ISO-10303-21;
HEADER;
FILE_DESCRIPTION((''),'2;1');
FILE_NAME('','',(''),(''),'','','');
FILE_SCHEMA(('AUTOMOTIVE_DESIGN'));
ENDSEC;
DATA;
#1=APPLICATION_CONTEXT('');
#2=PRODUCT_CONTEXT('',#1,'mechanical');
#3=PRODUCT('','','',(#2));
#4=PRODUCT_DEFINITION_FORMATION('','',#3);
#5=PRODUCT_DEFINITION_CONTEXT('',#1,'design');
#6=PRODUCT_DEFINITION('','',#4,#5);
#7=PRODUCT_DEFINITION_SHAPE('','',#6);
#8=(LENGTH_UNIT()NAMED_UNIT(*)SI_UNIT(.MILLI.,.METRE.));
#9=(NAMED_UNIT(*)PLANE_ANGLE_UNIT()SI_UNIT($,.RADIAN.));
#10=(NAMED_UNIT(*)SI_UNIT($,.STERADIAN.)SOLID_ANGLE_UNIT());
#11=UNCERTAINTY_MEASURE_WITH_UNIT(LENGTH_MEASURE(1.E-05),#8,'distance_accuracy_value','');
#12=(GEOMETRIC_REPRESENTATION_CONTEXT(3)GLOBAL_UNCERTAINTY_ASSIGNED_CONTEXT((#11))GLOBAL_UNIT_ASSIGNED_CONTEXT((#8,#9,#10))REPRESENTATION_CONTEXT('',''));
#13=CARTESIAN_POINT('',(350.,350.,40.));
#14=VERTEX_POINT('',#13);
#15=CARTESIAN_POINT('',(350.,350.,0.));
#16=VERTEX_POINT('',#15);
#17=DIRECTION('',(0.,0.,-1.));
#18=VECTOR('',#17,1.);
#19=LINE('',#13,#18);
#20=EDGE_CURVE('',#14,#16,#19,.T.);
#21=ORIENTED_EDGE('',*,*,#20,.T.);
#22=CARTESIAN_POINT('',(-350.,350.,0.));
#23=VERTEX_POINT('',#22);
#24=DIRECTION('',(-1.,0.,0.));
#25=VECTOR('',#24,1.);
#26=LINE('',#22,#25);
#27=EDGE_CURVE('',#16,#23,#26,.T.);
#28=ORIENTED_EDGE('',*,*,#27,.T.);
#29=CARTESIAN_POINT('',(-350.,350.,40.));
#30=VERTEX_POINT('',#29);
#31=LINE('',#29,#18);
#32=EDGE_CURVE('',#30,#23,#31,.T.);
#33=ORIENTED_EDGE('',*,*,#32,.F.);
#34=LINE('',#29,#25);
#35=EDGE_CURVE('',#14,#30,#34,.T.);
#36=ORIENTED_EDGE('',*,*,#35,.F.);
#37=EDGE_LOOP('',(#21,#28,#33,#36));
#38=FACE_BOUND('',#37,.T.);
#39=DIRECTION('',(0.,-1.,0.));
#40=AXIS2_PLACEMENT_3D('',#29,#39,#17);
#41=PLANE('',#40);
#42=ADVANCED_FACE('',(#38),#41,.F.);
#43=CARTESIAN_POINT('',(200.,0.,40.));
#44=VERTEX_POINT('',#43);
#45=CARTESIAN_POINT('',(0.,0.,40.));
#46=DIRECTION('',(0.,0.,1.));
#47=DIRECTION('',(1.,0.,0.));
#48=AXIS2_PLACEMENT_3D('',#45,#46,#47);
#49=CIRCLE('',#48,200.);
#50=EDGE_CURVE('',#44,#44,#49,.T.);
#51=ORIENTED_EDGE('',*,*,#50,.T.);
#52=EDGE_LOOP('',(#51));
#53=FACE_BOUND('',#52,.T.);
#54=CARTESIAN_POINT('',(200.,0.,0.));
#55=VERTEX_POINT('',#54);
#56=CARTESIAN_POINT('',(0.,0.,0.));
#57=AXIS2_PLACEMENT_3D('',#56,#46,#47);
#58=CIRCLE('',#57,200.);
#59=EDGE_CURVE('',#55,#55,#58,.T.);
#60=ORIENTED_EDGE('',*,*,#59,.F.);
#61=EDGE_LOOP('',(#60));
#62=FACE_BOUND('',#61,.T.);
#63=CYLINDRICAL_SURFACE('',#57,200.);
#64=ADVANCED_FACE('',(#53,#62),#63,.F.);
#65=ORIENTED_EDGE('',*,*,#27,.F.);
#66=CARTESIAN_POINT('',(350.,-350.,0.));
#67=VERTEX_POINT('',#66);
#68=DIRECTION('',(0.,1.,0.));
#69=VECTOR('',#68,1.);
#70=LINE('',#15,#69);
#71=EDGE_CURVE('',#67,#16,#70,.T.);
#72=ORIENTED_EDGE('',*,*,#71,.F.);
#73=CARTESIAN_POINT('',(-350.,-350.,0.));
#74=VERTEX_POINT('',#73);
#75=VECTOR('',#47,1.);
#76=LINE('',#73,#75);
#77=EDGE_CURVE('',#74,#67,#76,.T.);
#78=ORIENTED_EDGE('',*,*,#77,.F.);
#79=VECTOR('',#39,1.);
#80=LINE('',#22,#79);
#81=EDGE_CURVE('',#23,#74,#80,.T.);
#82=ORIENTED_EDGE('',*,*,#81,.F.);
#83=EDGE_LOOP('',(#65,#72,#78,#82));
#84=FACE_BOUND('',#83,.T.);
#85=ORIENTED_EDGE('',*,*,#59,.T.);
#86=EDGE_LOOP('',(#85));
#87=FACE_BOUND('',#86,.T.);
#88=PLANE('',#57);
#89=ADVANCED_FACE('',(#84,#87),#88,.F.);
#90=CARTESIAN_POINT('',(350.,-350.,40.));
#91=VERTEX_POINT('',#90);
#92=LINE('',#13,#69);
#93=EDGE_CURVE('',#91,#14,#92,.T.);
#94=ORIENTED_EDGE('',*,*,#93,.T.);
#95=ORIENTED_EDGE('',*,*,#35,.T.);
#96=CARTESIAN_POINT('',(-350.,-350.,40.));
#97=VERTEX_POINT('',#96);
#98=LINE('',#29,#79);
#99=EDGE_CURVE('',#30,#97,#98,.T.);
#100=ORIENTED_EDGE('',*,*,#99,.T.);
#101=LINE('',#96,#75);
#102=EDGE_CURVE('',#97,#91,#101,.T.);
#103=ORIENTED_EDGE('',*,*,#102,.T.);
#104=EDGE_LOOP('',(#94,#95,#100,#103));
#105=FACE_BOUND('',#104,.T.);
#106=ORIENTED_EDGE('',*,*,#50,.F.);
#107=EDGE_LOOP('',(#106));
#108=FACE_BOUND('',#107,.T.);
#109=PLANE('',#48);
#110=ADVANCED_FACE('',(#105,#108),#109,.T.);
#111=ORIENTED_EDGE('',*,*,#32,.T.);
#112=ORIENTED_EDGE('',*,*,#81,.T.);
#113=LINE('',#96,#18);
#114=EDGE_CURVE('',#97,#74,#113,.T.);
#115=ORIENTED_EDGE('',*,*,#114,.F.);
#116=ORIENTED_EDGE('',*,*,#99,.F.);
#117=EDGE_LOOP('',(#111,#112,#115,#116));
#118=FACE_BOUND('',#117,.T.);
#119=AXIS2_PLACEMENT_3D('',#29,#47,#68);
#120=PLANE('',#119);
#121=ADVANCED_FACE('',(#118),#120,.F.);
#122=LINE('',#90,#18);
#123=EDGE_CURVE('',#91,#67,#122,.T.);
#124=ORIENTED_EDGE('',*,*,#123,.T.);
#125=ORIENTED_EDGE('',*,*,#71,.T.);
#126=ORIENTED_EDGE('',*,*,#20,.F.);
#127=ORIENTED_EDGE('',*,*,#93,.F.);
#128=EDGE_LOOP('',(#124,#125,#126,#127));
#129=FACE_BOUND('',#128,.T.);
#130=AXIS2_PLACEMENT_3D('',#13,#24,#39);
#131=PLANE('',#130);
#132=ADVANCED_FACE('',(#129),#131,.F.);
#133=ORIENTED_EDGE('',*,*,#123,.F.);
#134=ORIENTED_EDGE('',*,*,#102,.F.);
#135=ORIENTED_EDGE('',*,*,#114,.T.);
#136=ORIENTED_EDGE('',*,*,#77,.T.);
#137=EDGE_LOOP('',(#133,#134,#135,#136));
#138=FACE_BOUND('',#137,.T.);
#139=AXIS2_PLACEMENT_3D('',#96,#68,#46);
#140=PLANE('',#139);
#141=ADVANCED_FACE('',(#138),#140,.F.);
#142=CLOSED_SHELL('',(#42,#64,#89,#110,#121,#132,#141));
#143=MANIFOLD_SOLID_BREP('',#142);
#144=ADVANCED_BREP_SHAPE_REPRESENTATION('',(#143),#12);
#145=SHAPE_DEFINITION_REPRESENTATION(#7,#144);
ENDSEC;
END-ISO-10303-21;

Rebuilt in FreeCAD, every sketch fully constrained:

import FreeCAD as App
import Part
import Sketcher

doc = App.newDocument("Part")
body = doc.addObject("PartDesign::Body", "Body")

sketch1 = body.newObject("Sketcher::SketchObject", "Sketch")
sketch1.AttachmentSupport = (doc.getObject("XY_Plane"), [""])
sketch1.MapMode = "FlatFace"
sketch1.addGeometry([
    Part.LineSegment(App.Vector(-350, 350, 0), App.Vector(-350, -350, 0)),
    Part.LineSegment(App.Vector(-350, -350, 0), App.Vector(350, -350, 0)),
    Part.LineSegment(App.Vector(350, -350, 0), App.Vector(350, 350, 0)),
    Part.LineSegment(App.Vector(350, 350, 0), App.Vector(-350, 350, 0)),
], False)
sketch1.addConstraint([
    Sketcher.Constraint("Coincident", 0, 2, 1, 1),
    Sketcher.Constraint("Coincident", 1, 2, 2, 1),
    Sketcher.Constraint("Coincident", 2, 2, 3, 1),
    Sketcher.Constraint("Coincident", 3, 2, 0, 1),
    Sketcher.Constraint("Vertical", 0),
    Sketcher.Constraint("Horizontal", 1),
    Sketcher.Constraint("Vertical", 2),
    Sketcher.Constraint("Horizontal", 3),
    Sketcher.Constraint("Symmetric", 0, 2, 2, 2, -1, 1),
    Sketcher.Constraint("Equal", 3, 0),
    Sketcher.Constraint("DistanceX", 1, 1, 1, 2, 700.0),
])
pad1 = body.newObject("PartDesign::Pad", "Pad")
pad1.Profile = sketch1
pad1.Length = 40

sketch2 = body.newObject("Sketcher::SketchObject", "Sketch001")
sketch2.AttachmentSupport = (doc.getObject("XY_Plane"), [""])
sketch2.MapMode = "FlatFace"
sketch2.AttachmentOffset = App.Placement(App.Vector(0, 0, 40), App.Rotation())
sketch2.addGeometry(Part.Circle(App.Vector(0, 0, 0), App.Vector(0, 0, 1), 200), False)
sketch2.addConstraint([
    Sketcher.Constraint("Coincident", 0, 3, -1, 1),
    Sketcher.Constraint("Diameter", 0, 400.0),
])
pocket1 = body.newObject("PartDesign::Pocket", "Pocket")
pocket1.Profile = sketch2
pocket1.Type = "ThroughAll"

doc.recompute()
